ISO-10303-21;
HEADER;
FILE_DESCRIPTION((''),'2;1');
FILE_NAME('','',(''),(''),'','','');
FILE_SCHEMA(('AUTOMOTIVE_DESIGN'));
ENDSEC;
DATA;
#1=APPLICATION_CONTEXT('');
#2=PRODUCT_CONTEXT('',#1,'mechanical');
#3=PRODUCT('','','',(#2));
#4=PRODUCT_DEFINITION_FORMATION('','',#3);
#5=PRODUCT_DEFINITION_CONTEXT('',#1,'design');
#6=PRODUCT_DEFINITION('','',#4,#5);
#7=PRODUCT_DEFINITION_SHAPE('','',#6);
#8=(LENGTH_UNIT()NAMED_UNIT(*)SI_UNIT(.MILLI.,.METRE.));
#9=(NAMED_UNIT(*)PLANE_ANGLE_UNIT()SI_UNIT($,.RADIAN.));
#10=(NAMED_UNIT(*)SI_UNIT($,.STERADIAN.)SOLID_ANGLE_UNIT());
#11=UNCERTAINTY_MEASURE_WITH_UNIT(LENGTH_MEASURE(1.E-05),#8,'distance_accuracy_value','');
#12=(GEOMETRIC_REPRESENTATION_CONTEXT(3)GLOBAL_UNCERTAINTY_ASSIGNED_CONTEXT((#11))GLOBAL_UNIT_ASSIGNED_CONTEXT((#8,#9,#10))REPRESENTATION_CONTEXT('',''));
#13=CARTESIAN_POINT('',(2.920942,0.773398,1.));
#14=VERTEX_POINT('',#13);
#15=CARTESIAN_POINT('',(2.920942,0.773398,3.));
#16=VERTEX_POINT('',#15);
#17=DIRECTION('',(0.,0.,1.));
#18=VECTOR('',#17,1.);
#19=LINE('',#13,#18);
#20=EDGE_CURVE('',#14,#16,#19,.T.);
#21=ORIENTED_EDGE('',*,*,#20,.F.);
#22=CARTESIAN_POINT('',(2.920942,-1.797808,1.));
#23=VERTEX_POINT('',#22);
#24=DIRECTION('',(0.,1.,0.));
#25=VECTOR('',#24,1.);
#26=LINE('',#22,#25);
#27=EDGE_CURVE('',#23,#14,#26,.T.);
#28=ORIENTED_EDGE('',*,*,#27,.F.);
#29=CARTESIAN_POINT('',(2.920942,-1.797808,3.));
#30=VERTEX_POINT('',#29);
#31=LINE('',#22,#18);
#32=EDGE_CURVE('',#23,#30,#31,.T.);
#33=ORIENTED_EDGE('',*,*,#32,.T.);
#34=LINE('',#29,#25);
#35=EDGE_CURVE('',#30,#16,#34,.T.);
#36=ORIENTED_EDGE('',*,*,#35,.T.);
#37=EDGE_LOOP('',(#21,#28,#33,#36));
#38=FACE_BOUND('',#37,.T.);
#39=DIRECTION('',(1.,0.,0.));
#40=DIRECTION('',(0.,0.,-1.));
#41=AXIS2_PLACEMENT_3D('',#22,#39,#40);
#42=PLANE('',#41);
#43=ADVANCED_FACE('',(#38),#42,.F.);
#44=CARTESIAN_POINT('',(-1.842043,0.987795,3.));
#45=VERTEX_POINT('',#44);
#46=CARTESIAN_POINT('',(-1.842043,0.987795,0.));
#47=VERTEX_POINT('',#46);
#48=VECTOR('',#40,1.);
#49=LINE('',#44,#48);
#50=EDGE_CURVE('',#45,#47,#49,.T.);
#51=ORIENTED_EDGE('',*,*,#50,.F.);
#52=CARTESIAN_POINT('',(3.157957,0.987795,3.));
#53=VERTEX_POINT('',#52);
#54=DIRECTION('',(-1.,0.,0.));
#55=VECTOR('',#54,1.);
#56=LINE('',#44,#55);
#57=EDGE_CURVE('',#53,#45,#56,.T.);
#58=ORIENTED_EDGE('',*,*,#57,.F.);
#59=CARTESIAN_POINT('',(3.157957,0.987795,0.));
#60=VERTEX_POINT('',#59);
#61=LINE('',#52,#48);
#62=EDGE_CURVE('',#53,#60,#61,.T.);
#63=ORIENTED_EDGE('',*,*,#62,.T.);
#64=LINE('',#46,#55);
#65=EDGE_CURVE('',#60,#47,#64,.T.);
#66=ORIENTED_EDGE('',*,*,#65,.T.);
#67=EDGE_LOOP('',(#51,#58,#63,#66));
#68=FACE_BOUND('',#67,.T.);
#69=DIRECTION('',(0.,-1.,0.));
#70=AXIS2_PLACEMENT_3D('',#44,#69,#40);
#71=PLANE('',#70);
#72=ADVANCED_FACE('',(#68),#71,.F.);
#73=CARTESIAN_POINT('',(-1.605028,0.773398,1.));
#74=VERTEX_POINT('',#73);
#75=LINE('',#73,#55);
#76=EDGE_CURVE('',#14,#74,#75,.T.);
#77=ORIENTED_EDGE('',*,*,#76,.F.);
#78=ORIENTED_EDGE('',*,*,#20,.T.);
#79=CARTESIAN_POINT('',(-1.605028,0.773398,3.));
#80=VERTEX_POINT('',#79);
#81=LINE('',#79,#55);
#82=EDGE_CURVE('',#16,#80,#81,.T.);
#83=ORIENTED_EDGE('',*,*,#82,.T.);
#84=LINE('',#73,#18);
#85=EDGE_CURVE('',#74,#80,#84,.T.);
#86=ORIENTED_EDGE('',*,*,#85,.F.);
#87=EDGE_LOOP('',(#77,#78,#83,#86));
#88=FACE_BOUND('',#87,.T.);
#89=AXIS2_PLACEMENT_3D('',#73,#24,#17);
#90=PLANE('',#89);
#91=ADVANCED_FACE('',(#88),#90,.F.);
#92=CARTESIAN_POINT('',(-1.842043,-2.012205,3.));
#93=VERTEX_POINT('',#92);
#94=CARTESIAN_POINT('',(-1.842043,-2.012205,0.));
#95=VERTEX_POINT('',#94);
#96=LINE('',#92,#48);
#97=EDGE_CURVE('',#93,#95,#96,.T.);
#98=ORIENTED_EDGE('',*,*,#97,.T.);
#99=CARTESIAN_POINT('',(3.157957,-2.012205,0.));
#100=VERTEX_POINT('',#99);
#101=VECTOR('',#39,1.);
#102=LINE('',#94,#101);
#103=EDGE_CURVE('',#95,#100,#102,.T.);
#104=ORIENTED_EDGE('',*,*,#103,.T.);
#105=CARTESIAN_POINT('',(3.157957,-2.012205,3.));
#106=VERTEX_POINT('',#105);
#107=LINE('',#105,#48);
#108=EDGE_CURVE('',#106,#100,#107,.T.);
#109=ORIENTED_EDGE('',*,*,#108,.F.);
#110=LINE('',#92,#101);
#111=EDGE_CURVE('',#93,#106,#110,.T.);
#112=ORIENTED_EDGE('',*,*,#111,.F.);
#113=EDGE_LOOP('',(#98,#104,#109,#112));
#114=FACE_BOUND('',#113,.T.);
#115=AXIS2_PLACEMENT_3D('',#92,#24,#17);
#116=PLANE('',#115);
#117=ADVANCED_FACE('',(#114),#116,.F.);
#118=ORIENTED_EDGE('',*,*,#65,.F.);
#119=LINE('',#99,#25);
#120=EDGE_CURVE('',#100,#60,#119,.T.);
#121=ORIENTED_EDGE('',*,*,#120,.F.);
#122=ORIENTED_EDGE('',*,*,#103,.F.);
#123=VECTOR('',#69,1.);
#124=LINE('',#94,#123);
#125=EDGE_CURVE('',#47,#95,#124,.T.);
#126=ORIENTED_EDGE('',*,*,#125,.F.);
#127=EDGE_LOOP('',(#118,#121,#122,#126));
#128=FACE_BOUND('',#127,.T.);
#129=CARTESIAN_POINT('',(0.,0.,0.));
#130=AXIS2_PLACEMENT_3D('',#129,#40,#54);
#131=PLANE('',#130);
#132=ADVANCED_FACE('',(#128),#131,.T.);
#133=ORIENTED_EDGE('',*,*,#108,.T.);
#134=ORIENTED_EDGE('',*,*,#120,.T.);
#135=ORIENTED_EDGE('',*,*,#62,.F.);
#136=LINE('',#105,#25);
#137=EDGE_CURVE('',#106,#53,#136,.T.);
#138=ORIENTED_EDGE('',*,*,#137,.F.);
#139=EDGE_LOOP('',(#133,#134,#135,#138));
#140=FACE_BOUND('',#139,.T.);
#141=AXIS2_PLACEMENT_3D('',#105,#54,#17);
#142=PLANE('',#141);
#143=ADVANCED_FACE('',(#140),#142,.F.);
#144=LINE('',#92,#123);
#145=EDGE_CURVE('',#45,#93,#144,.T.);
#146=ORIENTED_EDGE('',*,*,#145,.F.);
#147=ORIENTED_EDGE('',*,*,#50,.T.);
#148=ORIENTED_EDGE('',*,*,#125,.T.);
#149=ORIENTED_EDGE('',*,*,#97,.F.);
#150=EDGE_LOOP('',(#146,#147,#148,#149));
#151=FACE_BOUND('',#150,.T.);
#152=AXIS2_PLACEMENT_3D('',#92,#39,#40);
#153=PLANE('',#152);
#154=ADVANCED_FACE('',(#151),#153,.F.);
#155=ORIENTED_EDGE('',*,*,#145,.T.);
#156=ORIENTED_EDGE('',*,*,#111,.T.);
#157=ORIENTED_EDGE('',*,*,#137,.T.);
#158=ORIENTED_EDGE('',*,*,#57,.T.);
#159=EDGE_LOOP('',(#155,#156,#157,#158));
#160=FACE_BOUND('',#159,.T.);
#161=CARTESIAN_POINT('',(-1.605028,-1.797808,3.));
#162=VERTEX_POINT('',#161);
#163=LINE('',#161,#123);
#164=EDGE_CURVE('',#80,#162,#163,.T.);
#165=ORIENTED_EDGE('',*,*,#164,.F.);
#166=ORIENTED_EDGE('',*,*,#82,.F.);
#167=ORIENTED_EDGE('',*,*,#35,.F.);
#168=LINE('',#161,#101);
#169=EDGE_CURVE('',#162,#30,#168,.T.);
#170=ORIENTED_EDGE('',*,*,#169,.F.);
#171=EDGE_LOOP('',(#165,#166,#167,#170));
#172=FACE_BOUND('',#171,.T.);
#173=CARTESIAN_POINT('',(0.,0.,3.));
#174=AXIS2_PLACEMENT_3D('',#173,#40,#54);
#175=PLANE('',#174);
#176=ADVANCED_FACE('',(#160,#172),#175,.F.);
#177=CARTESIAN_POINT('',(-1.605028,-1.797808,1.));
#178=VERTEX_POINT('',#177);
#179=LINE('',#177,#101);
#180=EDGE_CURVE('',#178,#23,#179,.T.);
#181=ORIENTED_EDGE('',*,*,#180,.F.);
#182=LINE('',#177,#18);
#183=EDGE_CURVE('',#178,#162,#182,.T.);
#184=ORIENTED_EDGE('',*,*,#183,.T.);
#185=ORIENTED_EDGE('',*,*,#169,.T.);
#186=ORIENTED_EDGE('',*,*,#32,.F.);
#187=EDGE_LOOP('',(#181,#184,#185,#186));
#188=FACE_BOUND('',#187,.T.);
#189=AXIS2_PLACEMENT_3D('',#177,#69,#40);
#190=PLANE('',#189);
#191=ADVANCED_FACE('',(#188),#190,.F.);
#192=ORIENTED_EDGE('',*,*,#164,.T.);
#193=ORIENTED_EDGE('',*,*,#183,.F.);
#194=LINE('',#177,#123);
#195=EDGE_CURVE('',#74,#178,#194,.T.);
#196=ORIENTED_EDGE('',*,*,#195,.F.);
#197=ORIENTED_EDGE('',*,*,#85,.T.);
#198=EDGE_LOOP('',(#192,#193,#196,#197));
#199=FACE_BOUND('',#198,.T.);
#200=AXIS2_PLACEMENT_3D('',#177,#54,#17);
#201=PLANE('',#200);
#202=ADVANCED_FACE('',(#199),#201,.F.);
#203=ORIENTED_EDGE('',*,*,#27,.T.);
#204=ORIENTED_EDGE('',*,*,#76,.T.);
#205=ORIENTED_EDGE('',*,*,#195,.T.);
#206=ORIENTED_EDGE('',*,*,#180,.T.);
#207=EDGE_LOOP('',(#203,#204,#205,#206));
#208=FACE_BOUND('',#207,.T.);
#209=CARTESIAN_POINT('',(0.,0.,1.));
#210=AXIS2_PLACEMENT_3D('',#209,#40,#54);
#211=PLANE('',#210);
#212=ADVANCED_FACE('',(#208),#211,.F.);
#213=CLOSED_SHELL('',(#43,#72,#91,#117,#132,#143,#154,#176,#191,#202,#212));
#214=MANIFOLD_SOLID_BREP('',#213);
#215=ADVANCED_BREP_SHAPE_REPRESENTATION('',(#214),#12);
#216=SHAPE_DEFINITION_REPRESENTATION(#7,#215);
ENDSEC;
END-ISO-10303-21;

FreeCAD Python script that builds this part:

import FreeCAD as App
import Part
import Sketcher

doc = App.newDocument("Part")
body = doc.addObject("PartDesign::Body", "Body")

# Sketch on XY plane
sketch1 = body.newObject("Sketcher::SketchObject", "Sketch")
sketch1.AttachmentSupport = (doc.getObject("XY_Plane"), [""])
sketch1.MapMode = "FlatFace"
sketch1.addGeometry(Part.LineSegment(App.Vector(-1.842043, 0.987795, 0), App.Vector(-1.842043, -2.012205, 0)), False)
sketch1.addGeometry(Part.LineSegment(App.Vector(-1.842043, -2.012205, 0), App.Vector(3.157957, -2.012205, 0)), False)
sketch1.addGeometry(Part.LineSegment(App.Vector(3.157957, -2.012205, 0), App.Vector(3.157957, 0.987795, 0)), False)
sketch1.addGeometry(Part.LineSegment(App.Vector(3.157957, 0.987795, 0), App.Vector(-1.842043, 0.987795, 0)), False)
sketch1.addConstraint(Sketcher.Constraint("Coincident", 0, 2, 1, 1))
sketch1.addConstraint(Sketcher.Constraint("Coincident", 1, 2, 2, 1))
sketch1.addConstraint(Sketcher.Constraint("Coincident", 2, 2, 3, 1))
sketch1.addConstraint(Sketcher.Constraint("Coincident", 3, 2, 0, 1))
sketch1.addConstraint(Sketcher.Constraint("Vertical", 0))
sketch1.addConstraint(Sketcher.Constraint("Horizontal", 1))
sketch1.addConstraint(Sketcher.Constraint("Vertical", 2))
sketch1.addConstraint(Sketcher.Constraint("Horizontal", 3))
sketch1.addConstraint(Sketcher.Constraint("DistanceX", 1, 1, 1, 2, 5.0))
sketch1.addConstraint(Sketcher.Constraint("DistanceY", 0, 2, 0, 1, 3.0))
sketch1.addConstraint(Sketcher.Constraint("DistanceX", 0, 2, -1, 1, 1.842043))
sketch1.addConstraint(Sketcher.Constraint("DistanceY", 0, 2, -1, 1, 2.012205))
pad1 = body.newObject("PartDesign::Pad", "Pad")
pad1.Profile = sketch1
pad1.Length = 3

# Sketch on XY plane
sketch2 = body.newObject("Sketcher::SketchObject", "Sketch001")
sketch2.AttachmentSupport = (doc.getObject("XY_Plane"), [""])
sketch2.MapMode = "FlatFace"
sketch2.AttachmentOffset = App.Placement(App.Vector(0, 0, 3), App.Rotation())
sketch2.addGeometry(Part.LineSegment(App.Vector(-1.605028, 0.773398, 0), App.Vector(-1.605028, -1.797808, 0)), False)
sketch2.addGeometry(Part.LineSegment(App.Vector(-1.605028, -1.797808, 0), App.Vector(2.920942, -1.797808, 0)), False)
sketch2.addGeometry(Part.LineSegment(App.Vector(2.920942, -1.797808, 0), App.Vector(2.920942, 0.773398, 0)), False)
sketch2.addGeometry(Part.LineSegment(App.Vector(2.920942, 0.773398, 0), App.Vector(-1.605028, 0.773398, 0)), False)
sketch2.addConstraint(Sketcher.Constraint("Coincident", 0, 2, 1, 1))
sketch2.addConstraint(Sketcher.Constraint("Coincident", 1, 2, 2, 1))
sketch2.addConstraint(Sketcher.Constraint("Coincident", 2, 2, 3, 1))
sketch2.addConstraint(Sketcher.Constraint("Coincident", 3, 2, 0, 1))
sketch2.addConstraint(Sketcher.Constraint("Vertical", 0))
sketch2.addConstraint(Sketcher.Constraint("Horizontal", 1))
sketch2.addConstraint(Sketcher.Constraint("Vertical", 2))
sketch2.addConstraint(Sketcher.Constraint("Horizontal", 3))
sketch2.addConstraint(Sketcher.Constraint("DistanceX", 1, 1, 1, 2, 4.525971))
sketch2.addConstraint(Sketcher.Constraint("DistanceY", 0, 2, 0, 1, 2.571206))
sketch2.addConstraint(Sketcher.Constraint("DistanceX", 0, 2, -1, 1, 1.605028))
sketch2.addConstraint(Sketcher.Constraint("DistanceY", 0, 2, -1, 1, 1.797808))
pocket1 = body.newObject("PartDesign::Pocket", "Pocket")
pocket1.Profile = sketch2
pocket1.Length = 2

doc.recompute()
